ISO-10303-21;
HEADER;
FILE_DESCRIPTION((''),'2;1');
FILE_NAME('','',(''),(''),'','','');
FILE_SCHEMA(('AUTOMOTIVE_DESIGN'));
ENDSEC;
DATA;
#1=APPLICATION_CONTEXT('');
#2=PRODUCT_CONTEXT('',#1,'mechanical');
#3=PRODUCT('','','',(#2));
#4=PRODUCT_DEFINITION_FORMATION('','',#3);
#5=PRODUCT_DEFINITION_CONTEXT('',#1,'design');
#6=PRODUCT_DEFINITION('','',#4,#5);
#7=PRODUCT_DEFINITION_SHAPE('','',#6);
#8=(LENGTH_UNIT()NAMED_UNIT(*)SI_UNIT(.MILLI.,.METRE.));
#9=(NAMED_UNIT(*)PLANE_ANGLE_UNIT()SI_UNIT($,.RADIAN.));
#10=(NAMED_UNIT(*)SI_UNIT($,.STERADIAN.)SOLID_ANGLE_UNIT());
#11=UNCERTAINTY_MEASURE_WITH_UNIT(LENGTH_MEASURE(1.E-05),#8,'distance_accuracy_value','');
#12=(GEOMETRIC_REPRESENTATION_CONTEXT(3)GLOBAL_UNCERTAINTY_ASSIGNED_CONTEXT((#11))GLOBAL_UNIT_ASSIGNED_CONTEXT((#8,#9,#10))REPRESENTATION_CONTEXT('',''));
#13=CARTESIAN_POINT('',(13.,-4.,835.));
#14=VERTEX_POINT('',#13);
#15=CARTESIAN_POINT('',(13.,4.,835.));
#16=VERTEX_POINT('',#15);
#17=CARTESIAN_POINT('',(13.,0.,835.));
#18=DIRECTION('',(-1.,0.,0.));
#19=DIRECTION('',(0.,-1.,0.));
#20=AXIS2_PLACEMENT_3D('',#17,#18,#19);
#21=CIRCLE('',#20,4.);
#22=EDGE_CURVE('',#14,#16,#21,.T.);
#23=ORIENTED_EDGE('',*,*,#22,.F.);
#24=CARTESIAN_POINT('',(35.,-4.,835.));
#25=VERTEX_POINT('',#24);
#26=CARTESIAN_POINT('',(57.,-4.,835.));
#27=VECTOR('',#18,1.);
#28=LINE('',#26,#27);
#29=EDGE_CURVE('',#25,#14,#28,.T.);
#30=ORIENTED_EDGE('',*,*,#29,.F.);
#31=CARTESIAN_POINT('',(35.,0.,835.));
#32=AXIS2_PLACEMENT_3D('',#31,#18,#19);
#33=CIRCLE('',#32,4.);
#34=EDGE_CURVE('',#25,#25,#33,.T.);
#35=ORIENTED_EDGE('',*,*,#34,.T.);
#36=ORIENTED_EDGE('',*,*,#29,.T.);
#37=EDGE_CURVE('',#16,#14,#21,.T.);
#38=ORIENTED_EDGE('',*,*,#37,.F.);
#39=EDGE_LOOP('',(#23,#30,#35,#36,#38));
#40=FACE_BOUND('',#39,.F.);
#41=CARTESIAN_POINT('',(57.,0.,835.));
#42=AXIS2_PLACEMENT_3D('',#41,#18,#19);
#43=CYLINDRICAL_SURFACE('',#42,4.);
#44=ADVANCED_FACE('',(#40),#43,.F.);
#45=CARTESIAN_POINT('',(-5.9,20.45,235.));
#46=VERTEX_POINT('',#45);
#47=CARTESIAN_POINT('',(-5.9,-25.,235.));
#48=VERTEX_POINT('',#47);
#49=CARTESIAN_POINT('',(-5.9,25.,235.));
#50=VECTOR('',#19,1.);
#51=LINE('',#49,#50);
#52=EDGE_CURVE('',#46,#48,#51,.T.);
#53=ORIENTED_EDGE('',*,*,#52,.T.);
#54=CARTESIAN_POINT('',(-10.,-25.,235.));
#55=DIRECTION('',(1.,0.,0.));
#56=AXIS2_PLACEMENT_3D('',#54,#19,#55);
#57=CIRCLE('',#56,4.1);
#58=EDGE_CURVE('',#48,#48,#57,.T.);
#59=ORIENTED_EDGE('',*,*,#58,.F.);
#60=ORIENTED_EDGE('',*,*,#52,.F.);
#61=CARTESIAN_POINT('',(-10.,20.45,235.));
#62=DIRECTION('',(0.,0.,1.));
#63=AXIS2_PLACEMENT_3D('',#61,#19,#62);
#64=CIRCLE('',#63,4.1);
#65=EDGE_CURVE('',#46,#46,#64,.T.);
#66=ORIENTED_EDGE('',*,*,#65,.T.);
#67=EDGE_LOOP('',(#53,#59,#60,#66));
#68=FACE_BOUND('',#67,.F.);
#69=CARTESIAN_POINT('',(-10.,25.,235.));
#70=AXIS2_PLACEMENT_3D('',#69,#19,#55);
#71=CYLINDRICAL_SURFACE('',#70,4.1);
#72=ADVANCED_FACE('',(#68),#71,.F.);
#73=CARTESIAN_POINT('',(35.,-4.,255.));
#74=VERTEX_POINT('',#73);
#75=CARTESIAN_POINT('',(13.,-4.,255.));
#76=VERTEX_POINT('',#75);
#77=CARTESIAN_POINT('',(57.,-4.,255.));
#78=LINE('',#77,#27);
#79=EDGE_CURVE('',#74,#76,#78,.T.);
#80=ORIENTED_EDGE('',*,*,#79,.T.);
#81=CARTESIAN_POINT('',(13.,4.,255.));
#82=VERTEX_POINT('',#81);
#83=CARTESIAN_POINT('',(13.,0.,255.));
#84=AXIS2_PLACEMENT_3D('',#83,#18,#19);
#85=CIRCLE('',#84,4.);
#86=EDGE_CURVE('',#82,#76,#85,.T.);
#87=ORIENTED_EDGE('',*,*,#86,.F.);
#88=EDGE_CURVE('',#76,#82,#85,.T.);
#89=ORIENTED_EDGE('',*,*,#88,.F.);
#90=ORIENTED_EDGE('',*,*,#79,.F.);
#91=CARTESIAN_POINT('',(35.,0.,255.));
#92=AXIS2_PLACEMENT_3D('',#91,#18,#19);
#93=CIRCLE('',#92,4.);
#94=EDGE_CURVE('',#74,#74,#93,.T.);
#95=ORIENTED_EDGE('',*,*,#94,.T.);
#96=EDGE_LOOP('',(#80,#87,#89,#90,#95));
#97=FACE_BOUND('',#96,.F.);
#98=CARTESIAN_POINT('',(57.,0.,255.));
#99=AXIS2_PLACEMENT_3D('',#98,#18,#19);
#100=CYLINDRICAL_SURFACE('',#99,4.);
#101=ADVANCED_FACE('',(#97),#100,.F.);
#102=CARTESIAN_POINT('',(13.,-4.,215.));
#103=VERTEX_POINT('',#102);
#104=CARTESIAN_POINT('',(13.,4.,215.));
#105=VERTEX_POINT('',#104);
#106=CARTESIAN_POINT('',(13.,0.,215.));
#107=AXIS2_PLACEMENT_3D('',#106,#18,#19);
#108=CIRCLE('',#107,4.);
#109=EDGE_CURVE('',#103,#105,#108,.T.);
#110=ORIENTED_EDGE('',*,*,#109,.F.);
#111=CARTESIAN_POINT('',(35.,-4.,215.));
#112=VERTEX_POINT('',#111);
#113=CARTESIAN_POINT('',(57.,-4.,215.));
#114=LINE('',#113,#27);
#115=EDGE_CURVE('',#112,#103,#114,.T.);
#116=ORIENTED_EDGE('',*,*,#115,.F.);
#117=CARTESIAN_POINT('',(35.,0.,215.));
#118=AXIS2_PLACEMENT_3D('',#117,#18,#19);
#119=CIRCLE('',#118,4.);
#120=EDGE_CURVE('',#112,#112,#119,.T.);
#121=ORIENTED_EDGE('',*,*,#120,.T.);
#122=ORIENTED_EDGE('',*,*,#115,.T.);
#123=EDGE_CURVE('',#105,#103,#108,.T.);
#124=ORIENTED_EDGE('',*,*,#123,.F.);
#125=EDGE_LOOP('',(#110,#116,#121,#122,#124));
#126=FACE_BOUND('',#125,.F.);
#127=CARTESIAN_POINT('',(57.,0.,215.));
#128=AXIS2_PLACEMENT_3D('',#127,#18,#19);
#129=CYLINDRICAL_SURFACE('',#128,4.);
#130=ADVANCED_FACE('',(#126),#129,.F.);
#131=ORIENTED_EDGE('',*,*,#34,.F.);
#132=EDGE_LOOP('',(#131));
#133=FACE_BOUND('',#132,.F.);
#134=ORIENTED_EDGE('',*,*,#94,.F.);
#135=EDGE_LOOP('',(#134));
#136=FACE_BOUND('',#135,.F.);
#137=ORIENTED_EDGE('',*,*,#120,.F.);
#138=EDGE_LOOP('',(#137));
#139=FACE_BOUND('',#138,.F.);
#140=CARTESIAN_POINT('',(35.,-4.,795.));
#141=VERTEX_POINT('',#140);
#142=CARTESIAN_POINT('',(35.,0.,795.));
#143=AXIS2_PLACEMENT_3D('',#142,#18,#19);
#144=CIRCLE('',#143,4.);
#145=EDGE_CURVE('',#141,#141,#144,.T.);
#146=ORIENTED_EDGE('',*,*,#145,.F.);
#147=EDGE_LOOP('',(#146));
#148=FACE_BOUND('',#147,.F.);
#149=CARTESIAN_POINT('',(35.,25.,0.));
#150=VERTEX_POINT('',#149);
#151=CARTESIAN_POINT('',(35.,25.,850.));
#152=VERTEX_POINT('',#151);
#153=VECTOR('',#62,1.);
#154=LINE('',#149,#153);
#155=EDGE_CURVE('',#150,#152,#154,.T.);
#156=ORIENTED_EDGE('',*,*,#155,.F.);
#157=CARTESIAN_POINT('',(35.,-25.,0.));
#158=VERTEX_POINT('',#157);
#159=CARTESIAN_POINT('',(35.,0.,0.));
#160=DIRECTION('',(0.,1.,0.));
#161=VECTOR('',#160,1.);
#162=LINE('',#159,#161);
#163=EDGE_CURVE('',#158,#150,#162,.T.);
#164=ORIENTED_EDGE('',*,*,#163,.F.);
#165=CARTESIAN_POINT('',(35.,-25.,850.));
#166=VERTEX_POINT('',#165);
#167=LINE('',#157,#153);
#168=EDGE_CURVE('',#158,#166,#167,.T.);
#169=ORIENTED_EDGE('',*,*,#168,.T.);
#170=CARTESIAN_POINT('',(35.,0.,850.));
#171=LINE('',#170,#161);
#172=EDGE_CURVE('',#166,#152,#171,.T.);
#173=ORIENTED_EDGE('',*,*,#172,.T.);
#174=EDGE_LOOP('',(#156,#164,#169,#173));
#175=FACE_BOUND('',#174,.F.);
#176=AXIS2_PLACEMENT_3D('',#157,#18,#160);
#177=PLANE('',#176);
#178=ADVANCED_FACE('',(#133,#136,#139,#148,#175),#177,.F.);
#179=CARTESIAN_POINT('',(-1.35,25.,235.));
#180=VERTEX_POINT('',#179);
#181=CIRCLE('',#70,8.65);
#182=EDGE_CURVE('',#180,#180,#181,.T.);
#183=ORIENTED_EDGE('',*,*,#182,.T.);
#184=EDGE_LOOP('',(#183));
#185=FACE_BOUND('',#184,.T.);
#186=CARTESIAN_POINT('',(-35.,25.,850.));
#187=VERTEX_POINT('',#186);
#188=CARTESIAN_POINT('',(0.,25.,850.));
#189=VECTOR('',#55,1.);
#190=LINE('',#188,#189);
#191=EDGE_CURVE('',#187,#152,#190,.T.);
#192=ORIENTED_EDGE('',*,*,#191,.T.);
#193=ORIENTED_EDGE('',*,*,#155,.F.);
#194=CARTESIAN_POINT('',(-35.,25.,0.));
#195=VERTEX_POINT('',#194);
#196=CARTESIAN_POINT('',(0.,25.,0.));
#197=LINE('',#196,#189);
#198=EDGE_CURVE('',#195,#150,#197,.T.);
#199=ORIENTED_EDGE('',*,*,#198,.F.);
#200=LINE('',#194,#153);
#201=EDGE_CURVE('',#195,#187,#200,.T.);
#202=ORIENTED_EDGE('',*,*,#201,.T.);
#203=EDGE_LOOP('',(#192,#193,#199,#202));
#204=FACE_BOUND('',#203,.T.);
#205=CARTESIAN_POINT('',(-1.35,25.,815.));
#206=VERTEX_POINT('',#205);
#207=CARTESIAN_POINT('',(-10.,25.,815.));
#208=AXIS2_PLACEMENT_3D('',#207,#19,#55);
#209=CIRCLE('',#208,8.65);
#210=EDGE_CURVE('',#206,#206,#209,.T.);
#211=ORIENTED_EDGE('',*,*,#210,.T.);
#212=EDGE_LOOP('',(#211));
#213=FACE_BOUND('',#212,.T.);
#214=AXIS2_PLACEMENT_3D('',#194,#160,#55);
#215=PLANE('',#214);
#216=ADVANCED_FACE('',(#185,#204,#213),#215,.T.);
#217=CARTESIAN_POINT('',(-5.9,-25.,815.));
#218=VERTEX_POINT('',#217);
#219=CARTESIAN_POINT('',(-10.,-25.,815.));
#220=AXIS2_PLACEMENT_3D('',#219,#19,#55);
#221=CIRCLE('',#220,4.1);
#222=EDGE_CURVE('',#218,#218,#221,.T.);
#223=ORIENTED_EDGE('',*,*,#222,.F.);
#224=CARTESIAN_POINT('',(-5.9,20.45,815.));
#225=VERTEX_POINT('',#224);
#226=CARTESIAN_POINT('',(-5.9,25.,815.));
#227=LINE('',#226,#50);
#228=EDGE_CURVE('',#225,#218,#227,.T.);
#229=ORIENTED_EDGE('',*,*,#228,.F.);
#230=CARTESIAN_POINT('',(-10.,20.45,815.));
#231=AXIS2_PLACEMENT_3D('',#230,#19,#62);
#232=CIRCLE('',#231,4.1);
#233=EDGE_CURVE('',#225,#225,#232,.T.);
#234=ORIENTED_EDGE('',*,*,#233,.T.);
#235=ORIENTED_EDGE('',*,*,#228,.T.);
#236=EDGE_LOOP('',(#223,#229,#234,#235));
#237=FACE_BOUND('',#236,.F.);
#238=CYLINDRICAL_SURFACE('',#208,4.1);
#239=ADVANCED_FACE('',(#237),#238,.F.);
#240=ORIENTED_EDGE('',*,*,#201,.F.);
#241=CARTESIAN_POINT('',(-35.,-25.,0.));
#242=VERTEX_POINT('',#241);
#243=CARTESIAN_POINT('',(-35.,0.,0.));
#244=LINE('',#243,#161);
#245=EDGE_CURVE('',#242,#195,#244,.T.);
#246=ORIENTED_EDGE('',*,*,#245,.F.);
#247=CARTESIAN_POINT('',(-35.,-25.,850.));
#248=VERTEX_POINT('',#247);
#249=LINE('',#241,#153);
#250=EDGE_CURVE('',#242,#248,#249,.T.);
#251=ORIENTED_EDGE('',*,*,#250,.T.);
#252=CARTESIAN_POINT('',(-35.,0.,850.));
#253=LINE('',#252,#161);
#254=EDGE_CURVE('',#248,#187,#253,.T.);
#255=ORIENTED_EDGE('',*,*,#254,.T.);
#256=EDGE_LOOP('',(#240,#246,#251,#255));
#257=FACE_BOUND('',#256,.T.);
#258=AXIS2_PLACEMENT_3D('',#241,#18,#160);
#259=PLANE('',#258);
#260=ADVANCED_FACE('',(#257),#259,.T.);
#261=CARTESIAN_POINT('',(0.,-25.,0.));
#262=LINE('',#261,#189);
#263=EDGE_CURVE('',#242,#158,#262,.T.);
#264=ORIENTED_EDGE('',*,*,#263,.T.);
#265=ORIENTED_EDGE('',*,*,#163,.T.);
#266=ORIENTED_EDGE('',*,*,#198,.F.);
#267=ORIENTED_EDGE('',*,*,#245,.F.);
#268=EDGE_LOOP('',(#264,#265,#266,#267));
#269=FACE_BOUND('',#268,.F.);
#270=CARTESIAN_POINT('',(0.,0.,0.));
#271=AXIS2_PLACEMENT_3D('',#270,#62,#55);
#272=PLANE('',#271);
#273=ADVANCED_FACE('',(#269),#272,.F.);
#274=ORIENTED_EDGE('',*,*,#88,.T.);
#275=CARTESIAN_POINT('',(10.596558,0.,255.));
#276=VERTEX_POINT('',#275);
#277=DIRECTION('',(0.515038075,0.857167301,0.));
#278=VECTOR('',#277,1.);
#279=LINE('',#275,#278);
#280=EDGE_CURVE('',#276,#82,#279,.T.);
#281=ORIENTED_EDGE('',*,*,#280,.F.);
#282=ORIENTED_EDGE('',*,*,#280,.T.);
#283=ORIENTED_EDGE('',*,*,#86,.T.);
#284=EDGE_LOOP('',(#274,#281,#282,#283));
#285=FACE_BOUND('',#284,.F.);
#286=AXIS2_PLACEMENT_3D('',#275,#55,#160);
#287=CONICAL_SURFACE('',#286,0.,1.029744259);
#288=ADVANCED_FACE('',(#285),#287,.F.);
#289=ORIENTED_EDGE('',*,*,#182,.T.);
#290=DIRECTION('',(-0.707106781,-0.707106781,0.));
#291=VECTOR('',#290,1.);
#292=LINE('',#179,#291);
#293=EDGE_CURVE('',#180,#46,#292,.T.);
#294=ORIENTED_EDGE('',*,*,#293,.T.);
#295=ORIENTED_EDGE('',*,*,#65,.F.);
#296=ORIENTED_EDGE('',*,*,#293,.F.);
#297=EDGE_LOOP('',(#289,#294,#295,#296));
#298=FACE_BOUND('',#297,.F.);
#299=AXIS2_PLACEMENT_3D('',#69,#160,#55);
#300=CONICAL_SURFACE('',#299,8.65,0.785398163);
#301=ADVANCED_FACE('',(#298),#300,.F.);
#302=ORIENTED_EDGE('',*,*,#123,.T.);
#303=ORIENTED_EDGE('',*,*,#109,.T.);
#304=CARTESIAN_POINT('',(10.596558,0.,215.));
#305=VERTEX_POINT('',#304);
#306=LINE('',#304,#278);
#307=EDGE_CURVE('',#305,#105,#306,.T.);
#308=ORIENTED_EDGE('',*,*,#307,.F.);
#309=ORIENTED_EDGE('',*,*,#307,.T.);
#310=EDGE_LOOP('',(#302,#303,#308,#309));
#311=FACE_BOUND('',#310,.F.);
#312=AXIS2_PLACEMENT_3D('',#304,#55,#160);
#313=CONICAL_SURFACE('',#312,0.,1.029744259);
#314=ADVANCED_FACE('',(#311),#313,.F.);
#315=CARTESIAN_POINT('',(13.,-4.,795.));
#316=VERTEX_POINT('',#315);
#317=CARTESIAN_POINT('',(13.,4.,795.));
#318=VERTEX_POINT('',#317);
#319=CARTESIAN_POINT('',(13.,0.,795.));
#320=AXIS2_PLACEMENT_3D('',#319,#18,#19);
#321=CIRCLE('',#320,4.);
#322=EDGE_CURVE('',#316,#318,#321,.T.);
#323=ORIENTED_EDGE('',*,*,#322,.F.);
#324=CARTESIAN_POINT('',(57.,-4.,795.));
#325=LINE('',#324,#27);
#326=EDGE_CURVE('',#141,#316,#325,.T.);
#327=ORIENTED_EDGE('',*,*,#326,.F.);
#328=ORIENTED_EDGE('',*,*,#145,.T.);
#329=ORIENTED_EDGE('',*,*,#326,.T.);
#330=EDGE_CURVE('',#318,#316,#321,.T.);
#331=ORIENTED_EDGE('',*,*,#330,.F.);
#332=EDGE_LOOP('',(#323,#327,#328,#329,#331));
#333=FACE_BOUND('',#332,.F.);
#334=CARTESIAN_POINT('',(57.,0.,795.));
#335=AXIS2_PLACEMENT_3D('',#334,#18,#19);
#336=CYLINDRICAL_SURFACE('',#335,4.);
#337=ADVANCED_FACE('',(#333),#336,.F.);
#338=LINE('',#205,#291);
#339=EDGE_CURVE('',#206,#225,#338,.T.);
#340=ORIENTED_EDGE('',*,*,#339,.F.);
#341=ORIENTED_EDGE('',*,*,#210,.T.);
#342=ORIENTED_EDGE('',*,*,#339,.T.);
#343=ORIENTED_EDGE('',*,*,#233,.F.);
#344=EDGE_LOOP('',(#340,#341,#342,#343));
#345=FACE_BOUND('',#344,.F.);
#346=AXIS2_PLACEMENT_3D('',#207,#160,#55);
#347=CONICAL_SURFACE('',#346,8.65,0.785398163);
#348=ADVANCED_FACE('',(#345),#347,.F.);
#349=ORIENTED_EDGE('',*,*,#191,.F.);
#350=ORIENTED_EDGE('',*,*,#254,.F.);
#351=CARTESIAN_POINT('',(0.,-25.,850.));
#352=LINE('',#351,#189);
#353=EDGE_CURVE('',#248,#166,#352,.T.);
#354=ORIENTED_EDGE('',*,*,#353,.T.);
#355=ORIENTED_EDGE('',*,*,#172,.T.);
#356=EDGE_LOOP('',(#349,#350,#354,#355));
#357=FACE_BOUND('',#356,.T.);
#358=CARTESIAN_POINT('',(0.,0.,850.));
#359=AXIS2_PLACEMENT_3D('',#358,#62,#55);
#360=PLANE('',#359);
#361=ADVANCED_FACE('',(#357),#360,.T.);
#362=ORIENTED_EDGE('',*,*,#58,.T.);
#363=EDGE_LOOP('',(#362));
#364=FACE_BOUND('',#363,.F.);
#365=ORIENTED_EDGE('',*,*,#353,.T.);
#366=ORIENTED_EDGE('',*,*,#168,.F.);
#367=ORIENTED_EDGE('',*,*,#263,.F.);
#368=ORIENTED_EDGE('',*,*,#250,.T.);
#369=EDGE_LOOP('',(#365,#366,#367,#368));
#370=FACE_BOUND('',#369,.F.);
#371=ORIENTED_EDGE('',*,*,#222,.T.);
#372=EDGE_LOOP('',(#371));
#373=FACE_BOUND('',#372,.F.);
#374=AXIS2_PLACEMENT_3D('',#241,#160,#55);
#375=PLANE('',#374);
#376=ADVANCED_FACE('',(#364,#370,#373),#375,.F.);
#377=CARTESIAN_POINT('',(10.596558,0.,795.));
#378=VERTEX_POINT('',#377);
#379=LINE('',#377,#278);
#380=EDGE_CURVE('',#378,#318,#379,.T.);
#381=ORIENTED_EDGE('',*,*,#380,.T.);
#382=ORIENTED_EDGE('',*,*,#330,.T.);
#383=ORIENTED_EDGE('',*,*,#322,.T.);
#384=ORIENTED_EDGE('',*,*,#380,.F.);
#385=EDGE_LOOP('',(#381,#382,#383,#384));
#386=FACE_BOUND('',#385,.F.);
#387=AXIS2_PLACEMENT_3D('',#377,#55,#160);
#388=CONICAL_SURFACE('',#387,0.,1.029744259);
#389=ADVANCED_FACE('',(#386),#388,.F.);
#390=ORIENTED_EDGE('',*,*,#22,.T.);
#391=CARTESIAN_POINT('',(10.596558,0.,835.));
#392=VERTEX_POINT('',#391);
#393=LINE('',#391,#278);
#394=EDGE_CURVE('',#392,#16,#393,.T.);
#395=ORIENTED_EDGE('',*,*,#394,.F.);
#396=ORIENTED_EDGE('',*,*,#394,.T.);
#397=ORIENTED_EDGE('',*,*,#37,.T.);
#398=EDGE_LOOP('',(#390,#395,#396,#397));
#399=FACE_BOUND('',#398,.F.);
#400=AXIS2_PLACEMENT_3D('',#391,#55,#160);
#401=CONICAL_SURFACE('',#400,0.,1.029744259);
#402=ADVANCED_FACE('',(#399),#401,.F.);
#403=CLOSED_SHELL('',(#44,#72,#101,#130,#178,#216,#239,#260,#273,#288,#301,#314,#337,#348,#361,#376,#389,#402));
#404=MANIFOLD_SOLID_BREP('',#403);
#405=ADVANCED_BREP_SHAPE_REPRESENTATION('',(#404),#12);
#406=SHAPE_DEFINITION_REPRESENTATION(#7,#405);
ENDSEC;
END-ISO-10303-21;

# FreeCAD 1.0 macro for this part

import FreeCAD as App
import Part
import Sketcher
from FreeCAD import Vector

doc = App.newDocument("Part")
params = doc.addObject("Spreadsheet::Sheet", "Params")
for row, (alias, value) in enumerate([
    ("sketch1_width", "70 mm"),
    ("sketch1_height", "50 mm"),
    ("pad1_length", "850 mm"),
    ("sketch2_diameter", "8 mm"),
    ("hole_diameter", "8 mm"),
    ("hole_depth", "22 mm"),
    ("sketch3_diameter", "8.2 mm"),
    ("hole2_diameter", "8.2 mm"),
    ("hole2_csink_diameter", "17.3 mm"),
], start=1):
    params.set(f"A{row}", alias)
    params.set(f"B{row}", "=" + value)
    params.setAlias(f"B{row}", alias)

body = doc.addObject("PartDesign::Body", "Body")

sketch1 = body.newObject("Sketcher::SketchObject", "Sketch")
sketch1.AttachmentSupport = (doc.getObject("XY_Plane"), [""])
sketch1.MapMode = "FlatFace"
sketch1.addGeometry([
    Part.LineSegment(Vector(-35, 25, 0), Vector(-35, -25, 0)),
    Part.LineSegment(Vector(-35, -25, 0), Vector(35, -25, 0)),
    Part.LineSegment(Vector(35, -25, 0), Vector(35, 25, 0)),
    Part.LineSegment(Vector(35, 25, 0), Vector(-35, 25, 0)),
], False)
sketch1.addConstraint([
    Sketcher.Constraint("Coincident", 0, 2, 1, 1),
    Sketcher.Constraint("Coincident", 1, 2, 2, 1),
    Sketcher.Constraint("Coincident", 2, 2, 3, 1),
    Sketcher.Constraint("Coincident", 3, 2, 0, 1),
    Sketcher.Constraint("Vertical", 0),
    Sketcher.Constraint("Horizontal", 1),
    Sketcher.Constraint("Vertical", 2),
    Sketcher.Constraint("Horizontal", 3),
    Sketcher.Constraint("Symmetric", 0, 2, 2, 2, -1, 1),
    Sketcher.Constraint("DistanceX", 1, 1, 1, 2, 70.0),
    Sketcher.Constraint("DistanceY", 0, 2, 0, 1, 50.0),
])
sketch1.setExpression("Constraints[9]", "Params.sketch1_width")
sketch1.setExpression("Constraints[10]", "Params.sketch1_height")
pad1 = body.newObject("PartDesign::Pad", "Pad")
pad1.Profile = sketch1
pad1.setExpression("Length", "Params.pad1_length")

sketch2 = body.newObject("Sketcher::SketchObject", "Sketch001")
sketch2.AttachmentSupport = (doc.getObject("YZ_Plane"), [""])
sketch2.MapMode = "FlatFace"
sketch2.AttachmentOffset = App.Placement(Vector(0, 0, 35), App.Rotation())
sketch2.addGeometry([
    Part.Circle(Vector(0, 215, 0), Vector(0, 0, 1), 4),
    Part.Circle(Vector(0, 255, 0), Vector(0, 0, 1), 4),
    Part.Circle(Vector(0, 795, 0), Vector(0, 0, 1), 4),
    Part.Circle(Vector(0, 835, 0), Vector(0, 0, 1), 4),
], False)
sketch2.addConstraint([
    Sketcher.Constraint("Equal", 0, 1),
    Sketcher.Constraint("Equal", 1, 2),
    Sketcher.Constraint("Equal", 2, 3),
    Sketcher.Constraint("PointOnObject", 0, 3, -2),
    Sketcher.Constraint("PointOnObject", 1, 3, -2),
    Sketcher.Constraint("PointOnObject", 2, 3, -2),
    Sketcher.Constraint("PointOnObject", 3, 3, -2),
    Sketcher.Constraint("Diameter", 0, 8.0),
    Sketcher.Constraint("DistanceY", -1, 1, 0, 3, 215.0),
    Sketcher.Constraint("DistanceY", -1, 1, 1, 3, 255.0),
    Sketcher.Constraint("DistanceY", -1, 1, 2, 3, 795.0),
    Sketcher.Constraint("DistanceY", -1, 1, 3, 3, 835.0),
])
sketch2.setExpression("Constraints[7]", "Params.sketch2_diameter")
doc.recompute()
hole = body.newObject("PartDesign::Hole", "Hole")
hole.Profile = sketch2
hole.ThreadType = "None"
hole.setExpression("Diameter", "Params.hole_diameter")
hole.DepthType = "Dimension"
hole.setExpression("Depth", "Params.hole_depth")
hole.DrillPoint = "Angled"
hole.DrillPointAngle = 118

sketch3 = body.newObject("Sketcher::SketchObject", "Sketch002")
sketch3.AttachmentSupport = (doc.getObject("XZ_Plane"), [""])
sketch3.MapMode = "FlatFace"
sketch3.AttachmentOffset = App.Placement(Vector(0, 0, -25), App.Rotation())
sketch3.addGeometry([
    Part.Circle(Vector(-10, 235, 0), Vector(0, 0, 1), 4.1),
    Part.Circle(Vector(-10, 815, 0), Vector(0, 0, 1), 4.1),
], False)
sketch3.addConstraint([
    Sketcher.Constraint("Equal", 0, 1),
    Sketcher.Constraint("Vertical", 0, 3, 1, 3),
    Sketcher.Constraint("Diameter", 0, 8.2),
    Sketcher.Constraint("DistanceX", 0, 3, -1, 1, 10.0),
    Sketcher.Constraint("DistanceY", -1, 1, 0, 3, 235.0),
    Sketcher.Constraint("DistanceY", -1, 1, 1, 3, 815.0),
])
sketch3.setExpression("Constraints[2]", "Params.sketch3_diameter")
doc.recompute()
hole2 = body.newObject("PartDesign::Hole", "Hole001")
hole2.Profile = sketch3
hole2.ThreadType = "None"
hole2.setExpression("Diameter", "Params.hole2_diameter")
hole2.DepthType = "ThroughAll"
hole2.HoleCutType = "Countersink"
hole2.setExpression("HoleCutDiameter", "Params.hole2_csink_diameter")
hole2.HoleCutCountersinkAngle = 90
hole2.Reversed = True

doc.recompute()
